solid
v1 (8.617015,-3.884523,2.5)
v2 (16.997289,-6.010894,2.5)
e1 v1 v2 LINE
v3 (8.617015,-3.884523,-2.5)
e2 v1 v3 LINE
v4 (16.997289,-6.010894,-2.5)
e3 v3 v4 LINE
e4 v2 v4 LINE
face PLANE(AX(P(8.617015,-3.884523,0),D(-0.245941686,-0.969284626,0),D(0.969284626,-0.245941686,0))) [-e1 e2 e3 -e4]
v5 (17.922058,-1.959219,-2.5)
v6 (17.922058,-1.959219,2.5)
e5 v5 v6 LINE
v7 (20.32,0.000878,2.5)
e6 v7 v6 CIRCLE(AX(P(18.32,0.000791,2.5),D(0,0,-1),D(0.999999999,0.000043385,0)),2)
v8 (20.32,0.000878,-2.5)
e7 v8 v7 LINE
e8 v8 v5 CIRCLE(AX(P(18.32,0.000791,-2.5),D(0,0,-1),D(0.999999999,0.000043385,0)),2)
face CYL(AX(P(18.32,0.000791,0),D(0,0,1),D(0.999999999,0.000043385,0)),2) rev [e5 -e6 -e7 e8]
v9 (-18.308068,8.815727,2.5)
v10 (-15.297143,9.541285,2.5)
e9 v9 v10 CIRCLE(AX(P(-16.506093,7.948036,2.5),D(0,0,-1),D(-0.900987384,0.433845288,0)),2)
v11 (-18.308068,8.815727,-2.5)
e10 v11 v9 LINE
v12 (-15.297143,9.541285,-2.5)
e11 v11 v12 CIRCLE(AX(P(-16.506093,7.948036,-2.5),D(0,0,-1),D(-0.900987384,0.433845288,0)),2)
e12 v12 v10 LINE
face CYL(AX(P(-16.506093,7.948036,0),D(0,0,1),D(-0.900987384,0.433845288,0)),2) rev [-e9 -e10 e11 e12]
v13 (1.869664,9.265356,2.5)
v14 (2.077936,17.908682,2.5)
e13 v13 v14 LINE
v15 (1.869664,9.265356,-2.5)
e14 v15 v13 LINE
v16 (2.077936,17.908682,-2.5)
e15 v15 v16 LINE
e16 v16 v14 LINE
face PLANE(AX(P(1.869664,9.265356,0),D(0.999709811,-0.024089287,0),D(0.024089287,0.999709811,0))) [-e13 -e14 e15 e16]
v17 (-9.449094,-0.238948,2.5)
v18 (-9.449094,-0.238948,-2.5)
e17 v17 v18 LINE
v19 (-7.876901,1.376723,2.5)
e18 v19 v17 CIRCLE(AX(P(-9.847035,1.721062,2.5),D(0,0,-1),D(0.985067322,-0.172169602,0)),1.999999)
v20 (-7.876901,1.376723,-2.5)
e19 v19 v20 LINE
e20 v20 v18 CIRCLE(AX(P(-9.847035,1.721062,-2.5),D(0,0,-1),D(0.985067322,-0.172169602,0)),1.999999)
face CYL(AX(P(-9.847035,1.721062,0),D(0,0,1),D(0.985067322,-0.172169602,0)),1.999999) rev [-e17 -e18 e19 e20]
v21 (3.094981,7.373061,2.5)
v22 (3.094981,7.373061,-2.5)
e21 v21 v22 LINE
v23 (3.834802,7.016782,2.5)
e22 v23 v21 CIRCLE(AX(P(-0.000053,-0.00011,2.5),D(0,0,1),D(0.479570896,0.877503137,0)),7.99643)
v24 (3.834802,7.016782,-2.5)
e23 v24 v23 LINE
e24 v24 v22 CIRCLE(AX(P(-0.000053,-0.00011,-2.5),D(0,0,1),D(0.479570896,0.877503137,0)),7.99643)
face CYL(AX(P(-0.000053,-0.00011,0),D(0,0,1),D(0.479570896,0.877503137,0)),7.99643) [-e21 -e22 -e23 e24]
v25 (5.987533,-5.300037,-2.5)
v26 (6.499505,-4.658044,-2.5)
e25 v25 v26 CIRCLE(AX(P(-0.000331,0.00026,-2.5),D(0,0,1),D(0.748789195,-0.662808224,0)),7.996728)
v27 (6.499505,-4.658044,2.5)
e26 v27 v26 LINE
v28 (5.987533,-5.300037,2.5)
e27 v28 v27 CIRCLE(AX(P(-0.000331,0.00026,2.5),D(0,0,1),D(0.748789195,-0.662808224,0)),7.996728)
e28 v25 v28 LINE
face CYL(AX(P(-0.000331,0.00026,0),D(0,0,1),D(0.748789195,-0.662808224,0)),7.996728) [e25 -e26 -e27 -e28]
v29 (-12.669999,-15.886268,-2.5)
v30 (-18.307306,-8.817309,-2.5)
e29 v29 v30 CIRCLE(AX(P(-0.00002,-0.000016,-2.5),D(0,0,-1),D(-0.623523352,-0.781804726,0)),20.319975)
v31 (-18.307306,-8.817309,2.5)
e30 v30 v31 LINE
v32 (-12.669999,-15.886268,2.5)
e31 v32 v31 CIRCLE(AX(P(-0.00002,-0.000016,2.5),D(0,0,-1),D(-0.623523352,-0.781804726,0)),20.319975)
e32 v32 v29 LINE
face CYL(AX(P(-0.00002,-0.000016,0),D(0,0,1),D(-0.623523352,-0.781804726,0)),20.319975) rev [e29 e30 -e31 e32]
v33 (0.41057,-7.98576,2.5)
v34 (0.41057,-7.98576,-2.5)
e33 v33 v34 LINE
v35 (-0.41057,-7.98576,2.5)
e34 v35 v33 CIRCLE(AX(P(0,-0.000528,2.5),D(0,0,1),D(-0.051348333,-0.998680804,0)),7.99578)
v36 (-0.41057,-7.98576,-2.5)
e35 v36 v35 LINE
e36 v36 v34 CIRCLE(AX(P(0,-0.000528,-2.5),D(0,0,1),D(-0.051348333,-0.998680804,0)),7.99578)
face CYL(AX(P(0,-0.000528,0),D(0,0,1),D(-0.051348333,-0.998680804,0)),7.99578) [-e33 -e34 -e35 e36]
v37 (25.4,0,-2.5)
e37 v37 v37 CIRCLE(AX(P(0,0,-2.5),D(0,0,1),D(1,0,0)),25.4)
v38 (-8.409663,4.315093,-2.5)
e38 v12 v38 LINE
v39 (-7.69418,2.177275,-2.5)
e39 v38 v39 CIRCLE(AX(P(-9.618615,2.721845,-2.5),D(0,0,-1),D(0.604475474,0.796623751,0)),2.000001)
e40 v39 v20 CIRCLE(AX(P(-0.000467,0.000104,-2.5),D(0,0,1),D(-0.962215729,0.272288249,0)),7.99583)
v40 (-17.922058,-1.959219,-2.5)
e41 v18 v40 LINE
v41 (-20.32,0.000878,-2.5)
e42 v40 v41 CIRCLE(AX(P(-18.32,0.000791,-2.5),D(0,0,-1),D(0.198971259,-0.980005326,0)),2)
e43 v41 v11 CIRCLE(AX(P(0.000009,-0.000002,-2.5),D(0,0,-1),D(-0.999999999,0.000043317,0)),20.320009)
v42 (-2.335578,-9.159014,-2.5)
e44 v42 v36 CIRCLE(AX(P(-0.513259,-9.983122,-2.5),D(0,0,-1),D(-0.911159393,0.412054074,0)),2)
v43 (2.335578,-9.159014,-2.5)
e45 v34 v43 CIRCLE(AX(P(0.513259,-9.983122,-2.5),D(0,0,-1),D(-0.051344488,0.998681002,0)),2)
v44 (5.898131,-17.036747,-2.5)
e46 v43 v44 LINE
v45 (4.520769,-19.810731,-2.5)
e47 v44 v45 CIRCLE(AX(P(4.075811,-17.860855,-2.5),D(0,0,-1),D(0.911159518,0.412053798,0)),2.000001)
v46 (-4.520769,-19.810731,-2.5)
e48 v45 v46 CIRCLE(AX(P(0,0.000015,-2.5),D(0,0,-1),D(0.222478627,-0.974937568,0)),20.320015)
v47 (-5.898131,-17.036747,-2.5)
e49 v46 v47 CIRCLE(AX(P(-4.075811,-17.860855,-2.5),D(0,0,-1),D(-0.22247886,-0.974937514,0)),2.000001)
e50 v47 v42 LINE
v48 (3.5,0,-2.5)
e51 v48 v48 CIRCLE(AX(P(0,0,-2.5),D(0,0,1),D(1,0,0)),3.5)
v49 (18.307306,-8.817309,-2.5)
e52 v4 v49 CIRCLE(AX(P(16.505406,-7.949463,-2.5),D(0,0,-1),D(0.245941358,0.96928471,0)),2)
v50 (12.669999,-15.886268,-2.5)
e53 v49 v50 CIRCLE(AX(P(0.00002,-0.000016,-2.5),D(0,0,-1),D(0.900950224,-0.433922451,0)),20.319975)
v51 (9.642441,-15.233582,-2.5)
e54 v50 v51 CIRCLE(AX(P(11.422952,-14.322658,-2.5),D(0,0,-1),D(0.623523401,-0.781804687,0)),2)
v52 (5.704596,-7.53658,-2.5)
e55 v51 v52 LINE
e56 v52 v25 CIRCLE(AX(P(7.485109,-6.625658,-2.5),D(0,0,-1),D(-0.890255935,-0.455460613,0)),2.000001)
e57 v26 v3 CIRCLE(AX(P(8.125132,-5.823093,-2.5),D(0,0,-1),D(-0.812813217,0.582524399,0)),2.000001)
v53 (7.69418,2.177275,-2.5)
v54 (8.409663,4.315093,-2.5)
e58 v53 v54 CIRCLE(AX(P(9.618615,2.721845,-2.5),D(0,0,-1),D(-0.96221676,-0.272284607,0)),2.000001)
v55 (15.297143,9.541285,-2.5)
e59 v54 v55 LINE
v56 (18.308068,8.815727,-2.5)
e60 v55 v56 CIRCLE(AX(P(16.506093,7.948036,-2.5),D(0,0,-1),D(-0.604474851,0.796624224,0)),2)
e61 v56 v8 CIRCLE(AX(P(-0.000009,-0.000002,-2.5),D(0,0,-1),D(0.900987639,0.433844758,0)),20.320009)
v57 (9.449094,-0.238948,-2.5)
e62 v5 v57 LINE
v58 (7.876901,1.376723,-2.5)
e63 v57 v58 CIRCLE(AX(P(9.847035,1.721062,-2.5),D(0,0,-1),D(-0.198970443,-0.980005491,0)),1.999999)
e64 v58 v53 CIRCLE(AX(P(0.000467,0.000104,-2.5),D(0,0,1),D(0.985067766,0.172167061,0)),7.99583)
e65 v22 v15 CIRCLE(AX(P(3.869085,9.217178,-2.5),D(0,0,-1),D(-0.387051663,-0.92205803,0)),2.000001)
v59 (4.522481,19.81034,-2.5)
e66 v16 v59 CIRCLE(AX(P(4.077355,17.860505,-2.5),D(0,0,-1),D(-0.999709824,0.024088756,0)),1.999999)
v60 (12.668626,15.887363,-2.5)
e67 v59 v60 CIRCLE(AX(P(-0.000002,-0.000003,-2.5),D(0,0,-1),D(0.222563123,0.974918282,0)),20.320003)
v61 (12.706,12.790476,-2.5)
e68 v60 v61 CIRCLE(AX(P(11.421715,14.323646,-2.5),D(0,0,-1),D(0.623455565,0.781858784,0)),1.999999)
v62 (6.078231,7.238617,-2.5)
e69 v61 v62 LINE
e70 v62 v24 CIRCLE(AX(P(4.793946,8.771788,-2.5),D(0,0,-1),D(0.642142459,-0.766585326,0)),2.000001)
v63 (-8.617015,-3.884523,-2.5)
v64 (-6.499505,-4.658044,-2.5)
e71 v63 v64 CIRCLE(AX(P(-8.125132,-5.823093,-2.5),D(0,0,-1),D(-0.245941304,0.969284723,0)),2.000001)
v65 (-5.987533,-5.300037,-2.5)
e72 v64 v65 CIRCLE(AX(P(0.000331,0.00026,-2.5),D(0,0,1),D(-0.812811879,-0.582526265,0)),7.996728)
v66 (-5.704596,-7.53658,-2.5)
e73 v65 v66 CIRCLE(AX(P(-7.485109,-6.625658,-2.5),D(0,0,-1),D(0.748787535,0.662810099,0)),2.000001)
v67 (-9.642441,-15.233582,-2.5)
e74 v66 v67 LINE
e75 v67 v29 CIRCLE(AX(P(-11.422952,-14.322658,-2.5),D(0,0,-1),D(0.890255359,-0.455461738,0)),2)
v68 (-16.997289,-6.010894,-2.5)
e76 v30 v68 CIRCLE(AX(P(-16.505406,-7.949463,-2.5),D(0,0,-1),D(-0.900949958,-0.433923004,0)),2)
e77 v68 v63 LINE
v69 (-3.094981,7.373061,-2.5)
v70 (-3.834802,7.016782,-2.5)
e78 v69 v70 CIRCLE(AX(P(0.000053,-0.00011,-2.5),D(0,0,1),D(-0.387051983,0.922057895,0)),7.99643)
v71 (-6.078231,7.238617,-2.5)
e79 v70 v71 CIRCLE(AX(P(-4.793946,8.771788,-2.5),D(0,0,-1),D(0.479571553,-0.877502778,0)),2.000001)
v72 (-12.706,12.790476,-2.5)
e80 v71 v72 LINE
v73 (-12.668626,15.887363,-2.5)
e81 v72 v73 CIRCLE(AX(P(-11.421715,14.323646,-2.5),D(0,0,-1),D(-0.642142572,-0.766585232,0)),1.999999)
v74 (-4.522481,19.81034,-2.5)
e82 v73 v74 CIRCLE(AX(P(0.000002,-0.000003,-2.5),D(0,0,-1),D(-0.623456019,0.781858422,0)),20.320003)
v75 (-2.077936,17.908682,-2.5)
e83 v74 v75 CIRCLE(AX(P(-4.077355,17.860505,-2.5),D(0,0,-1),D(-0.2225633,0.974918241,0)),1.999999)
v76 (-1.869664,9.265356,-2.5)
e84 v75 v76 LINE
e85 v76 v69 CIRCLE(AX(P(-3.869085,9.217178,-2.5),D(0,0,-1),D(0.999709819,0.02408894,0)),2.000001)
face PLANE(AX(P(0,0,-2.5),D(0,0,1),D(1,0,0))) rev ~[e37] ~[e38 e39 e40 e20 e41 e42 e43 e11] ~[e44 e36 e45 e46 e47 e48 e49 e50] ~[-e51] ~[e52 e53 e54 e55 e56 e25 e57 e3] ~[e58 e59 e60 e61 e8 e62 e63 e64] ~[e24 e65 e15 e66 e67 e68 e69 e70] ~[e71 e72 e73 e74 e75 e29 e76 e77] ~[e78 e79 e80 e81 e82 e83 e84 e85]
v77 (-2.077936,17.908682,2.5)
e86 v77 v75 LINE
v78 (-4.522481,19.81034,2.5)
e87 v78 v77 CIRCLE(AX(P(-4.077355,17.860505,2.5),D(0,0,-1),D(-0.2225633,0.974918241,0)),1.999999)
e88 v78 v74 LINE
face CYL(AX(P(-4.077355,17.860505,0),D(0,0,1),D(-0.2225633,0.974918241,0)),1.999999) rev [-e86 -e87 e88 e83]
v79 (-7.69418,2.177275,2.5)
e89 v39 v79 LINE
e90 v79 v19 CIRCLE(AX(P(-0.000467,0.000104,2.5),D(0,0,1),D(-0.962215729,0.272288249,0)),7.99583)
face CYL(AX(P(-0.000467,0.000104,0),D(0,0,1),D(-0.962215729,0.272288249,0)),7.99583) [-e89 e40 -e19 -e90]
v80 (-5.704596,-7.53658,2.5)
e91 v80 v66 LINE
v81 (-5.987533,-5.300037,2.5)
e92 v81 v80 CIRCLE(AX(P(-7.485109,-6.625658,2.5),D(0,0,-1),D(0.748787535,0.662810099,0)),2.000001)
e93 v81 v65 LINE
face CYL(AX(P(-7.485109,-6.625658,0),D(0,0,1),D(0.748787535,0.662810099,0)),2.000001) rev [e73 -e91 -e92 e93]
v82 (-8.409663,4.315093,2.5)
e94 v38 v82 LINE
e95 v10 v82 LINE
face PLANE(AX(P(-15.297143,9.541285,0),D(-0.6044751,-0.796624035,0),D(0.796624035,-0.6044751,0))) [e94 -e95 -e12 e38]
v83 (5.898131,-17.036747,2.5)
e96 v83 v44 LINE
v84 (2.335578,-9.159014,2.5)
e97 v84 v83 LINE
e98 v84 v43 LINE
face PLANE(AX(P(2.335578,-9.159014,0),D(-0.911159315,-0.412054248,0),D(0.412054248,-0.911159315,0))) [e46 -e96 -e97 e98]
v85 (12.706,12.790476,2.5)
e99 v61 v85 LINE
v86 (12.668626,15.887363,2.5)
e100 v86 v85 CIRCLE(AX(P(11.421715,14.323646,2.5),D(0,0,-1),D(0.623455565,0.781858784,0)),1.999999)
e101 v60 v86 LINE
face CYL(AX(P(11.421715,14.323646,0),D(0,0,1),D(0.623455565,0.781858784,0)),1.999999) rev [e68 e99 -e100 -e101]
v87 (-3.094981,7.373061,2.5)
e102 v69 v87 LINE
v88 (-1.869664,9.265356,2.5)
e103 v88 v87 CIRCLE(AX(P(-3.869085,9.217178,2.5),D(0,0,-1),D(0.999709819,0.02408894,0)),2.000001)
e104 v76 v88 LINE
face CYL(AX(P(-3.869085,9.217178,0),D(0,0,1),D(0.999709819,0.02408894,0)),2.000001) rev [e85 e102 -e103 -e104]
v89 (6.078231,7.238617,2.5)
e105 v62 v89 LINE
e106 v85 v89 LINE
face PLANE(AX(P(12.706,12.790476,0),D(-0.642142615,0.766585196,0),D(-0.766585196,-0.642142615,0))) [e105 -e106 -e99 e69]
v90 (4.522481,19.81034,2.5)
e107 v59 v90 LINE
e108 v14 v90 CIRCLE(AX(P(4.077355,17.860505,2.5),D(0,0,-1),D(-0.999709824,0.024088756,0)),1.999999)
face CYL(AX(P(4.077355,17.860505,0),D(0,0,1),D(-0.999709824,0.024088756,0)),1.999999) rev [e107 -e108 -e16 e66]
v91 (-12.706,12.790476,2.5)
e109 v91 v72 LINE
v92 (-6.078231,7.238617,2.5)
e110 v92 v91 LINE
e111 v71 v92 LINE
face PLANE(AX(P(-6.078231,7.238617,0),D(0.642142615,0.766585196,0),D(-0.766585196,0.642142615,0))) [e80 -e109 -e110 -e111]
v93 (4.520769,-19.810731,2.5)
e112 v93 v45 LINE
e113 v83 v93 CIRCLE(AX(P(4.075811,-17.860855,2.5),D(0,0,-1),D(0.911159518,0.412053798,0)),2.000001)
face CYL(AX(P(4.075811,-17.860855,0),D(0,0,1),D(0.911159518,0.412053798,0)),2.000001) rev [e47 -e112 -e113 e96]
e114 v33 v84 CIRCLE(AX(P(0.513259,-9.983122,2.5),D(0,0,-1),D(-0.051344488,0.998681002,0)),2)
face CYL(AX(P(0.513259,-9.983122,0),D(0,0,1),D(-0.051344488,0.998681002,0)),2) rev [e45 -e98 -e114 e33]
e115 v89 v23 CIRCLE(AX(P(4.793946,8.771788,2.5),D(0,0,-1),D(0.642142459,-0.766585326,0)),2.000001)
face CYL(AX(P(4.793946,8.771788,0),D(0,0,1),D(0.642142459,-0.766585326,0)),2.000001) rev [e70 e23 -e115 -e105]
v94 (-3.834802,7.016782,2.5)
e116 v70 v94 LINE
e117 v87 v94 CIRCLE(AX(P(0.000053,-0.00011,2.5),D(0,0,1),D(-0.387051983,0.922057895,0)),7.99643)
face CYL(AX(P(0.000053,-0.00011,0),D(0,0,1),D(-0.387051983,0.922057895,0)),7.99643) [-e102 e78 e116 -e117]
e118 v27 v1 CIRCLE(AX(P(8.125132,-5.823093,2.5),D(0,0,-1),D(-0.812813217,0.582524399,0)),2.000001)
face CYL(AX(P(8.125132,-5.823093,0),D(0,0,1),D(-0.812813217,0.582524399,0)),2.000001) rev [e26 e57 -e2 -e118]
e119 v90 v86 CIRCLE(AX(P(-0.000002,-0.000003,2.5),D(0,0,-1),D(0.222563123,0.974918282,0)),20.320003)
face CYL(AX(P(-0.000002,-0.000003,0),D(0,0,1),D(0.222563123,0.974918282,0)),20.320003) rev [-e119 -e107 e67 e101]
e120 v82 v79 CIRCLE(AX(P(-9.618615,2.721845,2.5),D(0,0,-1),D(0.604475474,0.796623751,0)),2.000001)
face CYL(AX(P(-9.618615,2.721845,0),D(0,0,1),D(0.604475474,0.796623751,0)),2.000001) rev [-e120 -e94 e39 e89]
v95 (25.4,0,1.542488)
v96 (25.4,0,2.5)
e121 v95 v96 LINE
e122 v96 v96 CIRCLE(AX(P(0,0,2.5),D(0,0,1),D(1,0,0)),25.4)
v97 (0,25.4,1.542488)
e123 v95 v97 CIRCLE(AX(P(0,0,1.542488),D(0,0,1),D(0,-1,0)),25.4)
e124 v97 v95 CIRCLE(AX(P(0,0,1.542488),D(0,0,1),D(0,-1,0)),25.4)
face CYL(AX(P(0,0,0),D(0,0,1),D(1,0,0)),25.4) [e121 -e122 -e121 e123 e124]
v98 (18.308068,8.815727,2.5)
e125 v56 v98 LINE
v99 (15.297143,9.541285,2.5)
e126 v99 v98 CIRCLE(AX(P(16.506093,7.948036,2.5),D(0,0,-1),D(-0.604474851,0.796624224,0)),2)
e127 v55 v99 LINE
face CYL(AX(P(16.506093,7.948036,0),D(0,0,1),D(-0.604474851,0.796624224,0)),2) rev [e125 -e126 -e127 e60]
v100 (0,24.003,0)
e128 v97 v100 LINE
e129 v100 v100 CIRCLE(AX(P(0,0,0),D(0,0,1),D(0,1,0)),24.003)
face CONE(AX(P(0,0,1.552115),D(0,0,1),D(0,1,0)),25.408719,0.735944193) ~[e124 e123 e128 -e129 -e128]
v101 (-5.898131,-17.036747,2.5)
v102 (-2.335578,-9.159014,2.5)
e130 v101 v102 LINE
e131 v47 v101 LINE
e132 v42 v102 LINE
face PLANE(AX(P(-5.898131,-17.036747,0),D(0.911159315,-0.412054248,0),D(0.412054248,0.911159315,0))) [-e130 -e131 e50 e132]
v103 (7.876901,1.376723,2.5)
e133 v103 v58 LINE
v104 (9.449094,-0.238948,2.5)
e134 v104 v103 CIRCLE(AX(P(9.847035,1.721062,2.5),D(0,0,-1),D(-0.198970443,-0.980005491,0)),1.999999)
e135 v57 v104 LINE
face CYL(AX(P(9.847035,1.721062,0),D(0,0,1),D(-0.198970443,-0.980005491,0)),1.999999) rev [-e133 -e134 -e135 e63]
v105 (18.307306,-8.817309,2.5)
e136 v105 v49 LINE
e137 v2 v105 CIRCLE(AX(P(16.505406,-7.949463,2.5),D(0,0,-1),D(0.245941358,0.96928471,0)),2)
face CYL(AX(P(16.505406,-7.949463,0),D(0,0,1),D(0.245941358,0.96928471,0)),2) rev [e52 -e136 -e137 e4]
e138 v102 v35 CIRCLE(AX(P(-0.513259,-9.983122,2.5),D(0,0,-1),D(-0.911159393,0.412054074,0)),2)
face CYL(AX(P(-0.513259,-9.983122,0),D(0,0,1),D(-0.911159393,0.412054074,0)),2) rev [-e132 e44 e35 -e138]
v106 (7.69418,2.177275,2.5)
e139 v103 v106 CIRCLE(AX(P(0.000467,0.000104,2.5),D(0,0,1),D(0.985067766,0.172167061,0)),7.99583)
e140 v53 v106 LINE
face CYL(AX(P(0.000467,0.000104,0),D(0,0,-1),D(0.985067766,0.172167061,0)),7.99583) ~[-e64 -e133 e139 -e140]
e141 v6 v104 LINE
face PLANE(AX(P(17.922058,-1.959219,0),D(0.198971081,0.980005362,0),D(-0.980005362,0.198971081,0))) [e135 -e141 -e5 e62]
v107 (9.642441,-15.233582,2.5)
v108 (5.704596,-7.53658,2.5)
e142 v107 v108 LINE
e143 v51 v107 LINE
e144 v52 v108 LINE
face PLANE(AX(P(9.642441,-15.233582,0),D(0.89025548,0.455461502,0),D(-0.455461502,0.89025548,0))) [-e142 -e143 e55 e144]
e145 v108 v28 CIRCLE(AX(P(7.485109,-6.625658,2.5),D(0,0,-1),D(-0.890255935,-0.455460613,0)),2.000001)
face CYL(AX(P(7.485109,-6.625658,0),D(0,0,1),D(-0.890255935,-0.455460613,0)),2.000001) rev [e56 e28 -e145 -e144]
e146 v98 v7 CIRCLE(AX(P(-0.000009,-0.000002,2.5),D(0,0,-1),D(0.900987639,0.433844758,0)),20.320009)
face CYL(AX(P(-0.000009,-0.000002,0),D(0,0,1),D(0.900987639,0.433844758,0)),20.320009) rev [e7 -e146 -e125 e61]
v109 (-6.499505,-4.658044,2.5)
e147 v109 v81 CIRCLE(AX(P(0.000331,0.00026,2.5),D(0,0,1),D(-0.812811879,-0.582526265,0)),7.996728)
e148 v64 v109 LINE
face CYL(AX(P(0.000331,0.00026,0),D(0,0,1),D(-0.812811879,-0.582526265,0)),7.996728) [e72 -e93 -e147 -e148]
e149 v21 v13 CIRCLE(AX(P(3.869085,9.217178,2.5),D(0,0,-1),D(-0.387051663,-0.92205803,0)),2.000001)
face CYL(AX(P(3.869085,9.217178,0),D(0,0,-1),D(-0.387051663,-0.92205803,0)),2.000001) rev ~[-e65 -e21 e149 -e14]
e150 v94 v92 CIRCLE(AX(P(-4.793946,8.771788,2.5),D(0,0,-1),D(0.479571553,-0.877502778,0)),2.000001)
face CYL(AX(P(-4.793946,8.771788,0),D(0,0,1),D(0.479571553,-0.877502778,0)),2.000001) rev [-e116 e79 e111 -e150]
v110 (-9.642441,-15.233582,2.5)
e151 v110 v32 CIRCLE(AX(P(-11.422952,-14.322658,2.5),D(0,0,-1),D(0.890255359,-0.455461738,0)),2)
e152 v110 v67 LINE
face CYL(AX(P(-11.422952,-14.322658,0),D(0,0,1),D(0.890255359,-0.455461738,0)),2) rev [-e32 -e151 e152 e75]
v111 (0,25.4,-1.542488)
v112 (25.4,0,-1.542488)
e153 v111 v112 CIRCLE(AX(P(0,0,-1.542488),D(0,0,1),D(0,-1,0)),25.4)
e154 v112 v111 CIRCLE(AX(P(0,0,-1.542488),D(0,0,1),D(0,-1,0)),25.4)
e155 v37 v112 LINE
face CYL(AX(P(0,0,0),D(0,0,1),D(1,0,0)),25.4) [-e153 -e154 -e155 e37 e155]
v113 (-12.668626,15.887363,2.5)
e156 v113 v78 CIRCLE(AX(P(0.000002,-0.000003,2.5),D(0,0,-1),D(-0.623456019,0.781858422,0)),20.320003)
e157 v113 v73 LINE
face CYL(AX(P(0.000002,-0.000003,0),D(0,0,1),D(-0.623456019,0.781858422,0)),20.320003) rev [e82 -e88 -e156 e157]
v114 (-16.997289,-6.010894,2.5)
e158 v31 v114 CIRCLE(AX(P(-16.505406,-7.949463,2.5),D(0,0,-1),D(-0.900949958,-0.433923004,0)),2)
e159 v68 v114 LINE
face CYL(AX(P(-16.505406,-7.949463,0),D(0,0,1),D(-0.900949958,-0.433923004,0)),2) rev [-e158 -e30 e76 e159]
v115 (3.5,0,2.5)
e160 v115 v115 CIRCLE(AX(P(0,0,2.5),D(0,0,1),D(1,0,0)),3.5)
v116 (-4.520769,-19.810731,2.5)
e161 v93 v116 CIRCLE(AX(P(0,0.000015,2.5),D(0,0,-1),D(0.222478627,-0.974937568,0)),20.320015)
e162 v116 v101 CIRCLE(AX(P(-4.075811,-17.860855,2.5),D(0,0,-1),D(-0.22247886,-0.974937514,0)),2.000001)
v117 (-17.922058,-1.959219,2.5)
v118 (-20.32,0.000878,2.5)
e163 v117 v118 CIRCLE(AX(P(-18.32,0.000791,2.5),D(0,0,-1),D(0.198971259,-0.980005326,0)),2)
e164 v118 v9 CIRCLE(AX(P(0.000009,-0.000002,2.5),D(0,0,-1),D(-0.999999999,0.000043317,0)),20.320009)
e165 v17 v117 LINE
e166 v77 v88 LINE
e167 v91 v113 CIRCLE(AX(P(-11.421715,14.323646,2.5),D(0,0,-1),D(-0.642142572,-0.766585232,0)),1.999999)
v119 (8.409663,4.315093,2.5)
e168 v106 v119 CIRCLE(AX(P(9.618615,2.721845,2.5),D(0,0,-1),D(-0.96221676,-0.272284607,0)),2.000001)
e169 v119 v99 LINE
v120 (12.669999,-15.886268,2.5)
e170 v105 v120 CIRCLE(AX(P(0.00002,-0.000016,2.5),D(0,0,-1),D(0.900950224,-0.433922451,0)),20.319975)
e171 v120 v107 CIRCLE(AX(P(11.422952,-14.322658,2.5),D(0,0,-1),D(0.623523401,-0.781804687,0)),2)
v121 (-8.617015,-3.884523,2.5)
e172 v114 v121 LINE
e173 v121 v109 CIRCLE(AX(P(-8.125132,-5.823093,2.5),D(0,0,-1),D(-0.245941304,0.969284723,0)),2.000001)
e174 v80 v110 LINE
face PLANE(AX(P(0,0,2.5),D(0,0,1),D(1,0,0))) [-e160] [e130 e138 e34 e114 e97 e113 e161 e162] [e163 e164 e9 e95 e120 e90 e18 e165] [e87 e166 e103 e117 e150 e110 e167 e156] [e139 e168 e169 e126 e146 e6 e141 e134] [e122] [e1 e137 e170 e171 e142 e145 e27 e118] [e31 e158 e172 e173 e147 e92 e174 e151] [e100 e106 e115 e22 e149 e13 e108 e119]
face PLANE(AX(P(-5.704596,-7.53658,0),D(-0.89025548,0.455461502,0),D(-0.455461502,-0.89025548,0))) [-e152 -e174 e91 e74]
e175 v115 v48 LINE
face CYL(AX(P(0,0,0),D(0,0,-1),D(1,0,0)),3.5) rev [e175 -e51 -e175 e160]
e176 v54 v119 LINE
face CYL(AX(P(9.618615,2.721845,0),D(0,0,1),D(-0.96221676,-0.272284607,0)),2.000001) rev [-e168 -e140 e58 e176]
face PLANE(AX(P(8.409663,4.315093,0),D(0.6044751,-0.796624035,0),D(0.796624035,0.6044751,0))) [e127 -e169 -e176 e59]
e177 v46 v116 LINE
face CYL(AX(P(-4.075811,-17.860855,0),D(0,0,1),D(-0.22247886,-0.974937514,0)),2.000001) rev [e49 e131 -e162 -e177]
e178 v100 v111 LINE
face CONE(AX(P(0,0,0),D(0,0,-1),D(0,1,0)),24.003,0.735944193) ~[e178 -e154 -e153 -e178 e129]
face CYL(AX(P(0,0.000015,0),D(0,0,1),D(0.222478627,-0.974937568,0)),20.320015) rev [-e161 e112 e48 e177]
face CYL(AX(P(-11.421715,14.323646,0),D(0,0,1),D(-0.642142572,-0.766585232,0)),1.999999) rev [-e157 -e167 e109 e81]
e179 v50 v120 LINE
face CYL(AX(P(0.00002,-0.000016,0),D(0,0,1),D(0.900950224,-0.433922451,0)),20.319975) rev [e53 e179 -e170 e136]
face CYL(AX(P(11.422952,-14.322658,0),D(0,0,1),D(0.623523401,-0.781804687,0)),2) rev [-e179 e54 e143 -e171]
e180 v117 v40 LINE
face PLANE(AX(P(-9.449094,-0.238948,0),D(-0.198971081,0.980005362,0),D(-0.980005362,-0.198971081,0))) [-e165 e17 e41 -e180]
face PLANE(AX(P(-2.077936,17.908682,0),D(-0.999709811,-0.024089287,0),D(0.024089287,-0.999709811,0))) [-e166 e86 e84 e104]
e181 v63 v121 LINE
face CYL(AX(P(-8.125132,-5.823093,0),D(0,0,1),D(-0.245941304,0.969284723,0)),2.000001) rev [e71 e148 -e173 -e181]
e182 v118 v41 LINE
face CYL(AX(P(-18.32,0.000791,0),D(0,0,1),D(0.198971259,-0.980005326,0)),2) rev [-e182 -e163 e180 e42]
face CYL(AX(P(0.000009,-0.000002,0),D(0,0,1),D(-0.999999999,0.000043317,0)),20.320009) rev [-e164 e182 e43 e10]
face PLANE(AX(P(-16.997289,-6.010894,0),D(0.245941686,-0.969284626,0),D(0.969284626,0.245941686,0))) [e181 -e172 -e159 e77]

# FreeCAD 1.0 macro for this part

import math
import FreeCAD as App
import Part
import Sketcher
from FreeCAD import Vector


def add_polygon(sketch, points):
    """Adds a closed chain of lines whose ends are joined by coincident constraints."""
    first, n = sketch.GeometryCount, len(points)
    for a, b in zip(points, points[1:] + points[:1]):
        sketch.addGeometry(Part.LineSegment(App.Vector(*a, 0), App.Vector(*b, 0)), False)
    for i in range(n):
        sketch.addConstraint(Sketcher.Constraint("Coincident", first + i, 2, first + (i + 1) % n, 1))

doc = App.newDocument("Part")
body = doc.addObject("PartDesign::Body", "Body")

sketch1 = body.newObject("Sketcher::SketchObject", "Sketch")
sketch1.AttachmentSupport = (doc.getObject("XY_Plane"), [""])
sketch1.MapMode = "FlatFace"
sketch1.addGeometry(Part.Circle(Vector(0, 0, 0), Vector(0, 0, 1), 25.4), False)
sketch1.addGeometry(Part.ArcOfCircle(Part.Circle(Vector(-0.00002, -0.000016, 0), Vector(0, 0, 1), 20.319975), math.radians(-154.283252), math.radians(-128.573887)), False)
sketch1.addGeometry(Part.ArcOfCircle(Part.Circle(Vector(-16.505406, -7.949463, 0), Vector(0, 0, 1), 2), math.radians(104.237472), math.radians(205.716783)), False)
sketch1.addGeometry(Part.LineSegment(Vector(-16.997289, -6.010894, 0), Vector(-8.617015, -3.884523, 0)), False)
sketch1.addGeometry(Part.ArcOfCircle(Part.Circle(Vector(-8.125132, -5.823093, 0), Vector(0, 0, 1), 2.000001), math.radians(35.628292), math.radians(104.237469)), False)
sketch1.addGeometry(Part.ArcOfCircle(Part.Circle(Vector(0.000331, 0.00026, 0), Vector(0, 0, 1), 7.996728), math.radians(-144.371576), math.radians(-138.485603)), False)
sketch1.addGeometry(Part.ArcOfCircle(Part.Circle(Vector(-7.485109, -6.625658, 0), Vector(0, 0, 1), 2.000001), math.radians(-27.094575), math.radians(41.514541)), False)
sketch1.addGeometry(Part.LineSegment(Vector(-5.704596, -7.53658, 0), Vector(-9.642441, -15.233582, 0)), False)
sketch1.addGeometry(Part.ArcOfCircle(Part.Circle(Vector(-11.422952, -14.322658, 0), Vector(0, 0, 1), 2), math.radians(-128.573891), math.radians(-27.094647)), False)
sketch1.addGeometry(Part.ArcOfCircle(Part.Circle(Vector(0, 0.000015, 0), Vector(0, 0, 1), 20.320015), math.radians(-102.854657), math.radians(-77.145343)), False)
sketch1.addGeometry(Part.ArcOfCircle(Part.Circle(Vector(-4.075811, -17.860855, 0), Vector(0, 0, 1), 2.000001), math.radians(155.666083), math.radians(257.14533)), False)
sketch1.addGeometry(Part.LineSegment(Vector(-5.898131, -17.036747, 0), Vector(-2.335578, -9.159014, 0)), False)
sketch1.addGeometry(Part.ArcOfCircle(Part.Circle(Vector(-0.513259, -9.983122, 0), Vector(0, 0, 1), 2), math.radians(87.056883), math.radians(155.666066)), False)
sketch1.addGeometry(Part.ArcOfCircle(Part.Circle(Vector(0, -0.000528, 0), Vector(0, 0, 1), 7.99578), math.radians(-92.943337), math.radians(-87.056663)), False)
sketch1.addGeometry(Part.ArcOfCircle(Part.Circle(Vector(0.513259, -9.983122, 0), Vector(0, 0, 1), 2), math.radians(24.333934), math.radians(92.943117)), False)
sketch1.addGeometry(Part.LineSegment(Vector(2.335578, -9.159014, 0), Vector(5.898131, -17.036747, 0)), False)
sketch1.addGeometry(Part.ArcOfCircle(Part.Circle(Vector(4.075811, -17.860855, 0), Vector(0, 0, 1), 2.000001), math.radians(-77.14533), math.radians(24.333917)), False)
sketch1.addGeometry(Part.ArcOfCircle(Part.Circle(Vector(0.00002, -0.000016, 0), Vector(0, 0, 1), 20.319975), math.radians(-51.426113), math.radians(-25.716748)), False)
sketch1.addGeometry(Part.ArcOfCircle(Part.Circle(Vector(11.422952, -14.322658, 0), Vector(0, 0, 1), 2), math.radians(-152.905353), math.radians(-51.426109)), False)
sketch1.addGeometry(Part.LineSegment(Vector(9.642441, -15.233582, 0), Vector(5.704596, -7.53658, 0)), False)
sketch1.addGeometry(Part.ArcOfCircle(Part.Circle(Vector(7.485109, -6.625658, 0), Vector(0, 0, 1), 2.000001), math.radians(138.485459), math.radians(207.094575)), False)
sketch1.addGeometry(Part.ArcOfCircle(Part.Circle(Vector(-0.000331, 0.00026, 0), Vector(0, 0, 1), 7.996728), math.radians(-41.514397), math.radians(-35.628424)), False)
sketch1.addGeometry(Part.ArcOfCircle(Part.Circle(Vector(8.125132, -5.823093, 0), Vector(0, 0, 1), 2.000001), math.radians(75.762531), math.radians(144.371708)), False)
sketch1.addGeometry(Part.LineSegment(Vector(8.617015, -3.884523, 0), Vector(16.997289, -6.010894, 0)), False)
sketch1.addGeometry(Part.ArcOfCircle(Part.Circle(Vector(16.505406, -7.949463, 0), Vector(0, 0, 1), 2), math.radians(-25.716783), math.radians(75.762528)), False)
sketch1.addGeometry(Part.ArcOfCircle(Part.Circle(Vector(0.000009, -0.000002, 0), Vector(0, 0, 1), 20.320009), math.radians(154.288193), math.radians(179.997518)), False)
sketch1.addGeometry(Part.ArcOfCircle(Part.Circle(Vector(-16.506093, 7.948036, 0), Vector(0, 0, 1), 2), math.radians(52.808938), math.radians(154.28816)), False)
sketch1.addGeometry(Part.LineSegment(Vector(-15.297143, 9.541285, 0), Vector(-8.409663, 4.315093, 0)), False)
sketch1.addGeometry(Part.ArcOfCircle(Part.Circle(Vector(-9.618615, 2.721845, 0), Vector(0, 0, 1), 2.000001), math.radians(-15.80026), math.radians(52.808893)), False)
sketch1.addGeometry(Part.ArcOfCircle(Part.Circle(Vector(-0.000467, 0.000104, 0), Vector(0, 0, 1), 7.99583), math.radians(164.199524), math.radians(170.086159)), False)
sketch1.addGeometry(Part.ArcOfCircle(Part.Circle(Vector(-9.847035, 1.721062, 0), Vector(0, 0, 1), 1.999999), math.radians(-78.52324), math.radians(-9.913988)), False)
sketch1.addGeometry(Part.LineSegment(Vector(-9.449094, -0.238948, 0), Vector(-17.922058, -1.959219, 0)), False)
sketch1.addGeometry(Part.ArcOfCircle(Part.Circle(Vector(-18.32, 0.000791, 0), Vector(0, 0, 1), 2), math.radians(179.997514), math.radians(281.476807)), False)
sketch1.addGeometry(Part.LineSegment(Vector(-2.077936, 17.908682, 0), Vector(-1.869664, 9.265356, 0)), False)
sketch1.addGeometry(Part.ArcOfCircle(Part.Circle(Vector(-3.869085, 9.217178, 0), Vector(0, 0, 1), 2.000001), math.radians(-67.228831), math.radians(1.380328)), False)
sketch1.addGeometry(Part.ArcOfCircle(Part.Circle(Vector(0.000053, -0.00011, 0), Vector(0, 0, 1), 7.99643), math.radians(112.771189), math.radians(118.65738)), False)
sketch1.addGeometry(Part.ArcOfCircle(Part.Circle(Vector(-4.793946, 8.771788, 0), Vector(0, 0, 1), 2.000001), math.radians(-129.951763), math.radians(-61.342577)), False)
sketch1.addGeometry(Part.LineSegment(Vector(-6.078231, 7.238617, 0), Vector(-12.706, 12.790476, 0)), False)
sketch1.addGeometry(Part.ArcOfCircle(Part.Circle(Vector(-11.421715, 14.323646, 0), Vector(0, 0, 1), 1.999999), math.radians(128.56892), math.radians(230.048228)), False)
sketch1.addGeometry(Part.ArcOfCircle(Part.Circle(Vector(0.000002, -0.000003, 0), Vector(0, 0, 1), 20.320003), math.radians(102.859622), math.radians(128.568953)), False)
sketch1.addGeometry(Part.ArcOfCircle(Part.Circle(Vector(-4.077355, 17.860505, 0), Vector(0, 0, 1), 1.999999), math.radians(1.380318), math.radians(102.859633)), False)
sketch1.addGeometry(Part.Circle(Vector(0, 0, 0), Vector(0, 0, 1), 3.5), False)
sketch1.addGeometry(Part.ArcOfCircle(Part.Circle(Vector(-0.000009, -0.000002, 0), Vector(0, 0, 1), 20.320009), math.radians(0.002482), math.radians(25.711807)), False)
sketch1.addGeometry(Part.ArcOfCircle(Part.Circle(Vector(18.32, 0.000791, 0), Vector(0, 0, 1), 2), math.radians(-101.476807), math.radians(0.002486)), False)
sketch1.addGeometry(Part.LineSegment(Vector(17.922058, -1.959219, 0), Vector(9.449094, -0.238948, 0)), False)
sketch1.addGeometry(Part.ArcOfCircle(Part.Circle(Vector(9.847035, 1.721062, 0), Vector(0, 0, 1), 1.999999), math.radians(-170.086012), math.radians(-101.47676)), False)
sketch1.addGeometry(Part.ArcOfCircle(Part.Circle(Vector(0.000467, 0.000104, 0), Vector(0, 0, 1), 7.99583), math.radians(9.913841), math.radians(15.800476)), False)
sketch1.addGeometry(Part.ArcOfCircle(Part.Circle(Vector(9.618615, 2.721845, 0), Vector(0, 0, 1), 2.000001), math.radians(127.191107), math.radians(195.80026)), False)
sketch1.addGeometry(Part.LineSegment(Vector(8.409663, 4.315093, 0), Vector(15.297143, 9.541285, 0)), False)
sketch1.addGeometry(Part.ArcOfCircle(Part.Circle(Vector(16.506093, 7.948036, 0), Vector(0, 0, 1), 2), math.radians(25.71184), math.radians(127.191062)), False)
sketch1.addGeometry(Part.ArcOfCircle(Part.Circle(Vector(-0.000053, -0.00011, 0), Vector(0, 0, 1), 7.99643), math.radians(61.34262), math.radians(67.228811)), False)
sketch1.addGeometry(Part.ArcOfCircle(Part.Circle(Vector(3.869085, 9.217178, 0), Vector(0, 0, 1), 2.000001), math.radians(178.619672), math.radians(247.228831)), False)
sketch1.addGeometry(Part.LineSegment(Vector(1.869664, 9.265356, 0), Vector(2.077936, 17.908682, 0)), False)
sketch1.addGeometry(Part.ArcOfCircle(Part.Circle(Vector(4.077355, 17.860505, 0), Vector(0, 0, 1), 1.999999), math.radians(77.140367), math.radians(178.619682)), False)
sketch1.addGeometry(Part.ArcOfCircle(Part.Circle(Vector(-0.000002, -0.000003, 0), Vector(0, 0, 1), 20.320003), math.radians(51.431047), math.radians(77.140378)), False)
sketch1.addGeometry(Part.ArcOfCircle(Part.Circle(Vector(11.421715, 14.323646, 0), Vector(0, 0, 1), 1.999999), math.radians(-50.048228), math.radians(51.43108)), False)
sketch1.addGeometry(Part.LineSegment(Vector(12.706, 12.790476, 0), Vector(6.078231, 7.238617, 0)), False)
sketch1.addGeometry(Part.ArcOfCircle(Part.Circle(Vector(4.793946, 8.771788, 0), Vector(0, 0, 1), 2.000001), math.radians(-118.657423), math.radians(-50.048237)), False)
sketch1.addConstraint(Sketcher.Constraint("Coincident", 1, 1, 2, 2))
sketch1.addConstraint(Sketcher.Constraint("Coincident", 2, 1, 3, 1))
sketch1.addConstraint(Sketcher.Constraint("Coincident", 3, 2, 4, 2))
sketch1.addConstraint(Sketcher.Constraint("Coincident", 4, 1, 5, 1))
sketch1.addConstraint(Sketcher.Constraint("Coincident", 5, 2, 6, 2))
sketch1.addConstraint(Sketcher.Constraint("Coincident", 6, 1, 7, 1))
sketch1.addConstraint(Sketcher.Constraint("Coincident", 7, 2, 8, 2))
sketch1.addConstraint(Sketcher.Constraint("Coincident", 8, 1, 1, 2))
sketch1.addConstraint(Sketcher.Constraint("Coincident", 9, 1, 10, 2))
sketch1.addConstraint(Sketcher.Constraint("Coincident", 10, 1, 11, 1))
sketch1.addConstraint(Sketcher.Constraint("Coincident", 11, 2, 12, 2))
sketch1.addConstraint(Sketcher.Constraint("Coincident", 12, 1, 13, 1))
sketch1.addConstraint(Sketcher.Constraint("Coincident", 13, 2, 14, 2))
sketch1.addConstraint(Sketcher.Constraint("Coincident", 14, 1, 15, 1))
sketch1.addConstraint(Sketcher.Constraint("Coincident", 15, 2, 16, 2))
sketch1.addConstraint(Sketcher.Constraint("Coincident", 16, 1, 9, 2))
sketch1.addConstraint(Sketcher.Constraint("Coincident", 17, 1, 18, 2))
sketch1.addConstraint(Sketcher.Constraint("Coincident", 18, 1, 19, 1))
sketch1.addConstraint(Sketcher.Constraint("Coincident", 19, 2, 20, 2))
sketch1.addConstraint(Sketcher.Constraint("Coincident", 20, 1, 21, 1))
sketch1.addConstraint(Sketcher.Constraint("Coincident", 21, 2, 22, 2))
sketch1.addConstraint(Sketcher.Constraint("Coincident", 22, 1, 23, 1))
sketch1.addConstraint(Sketcher.Constraint("Coincident", 23, 2, 24, 2))
sketch1.addConstraint(Sketcher.Constraint("Coincident", 24, 1, 17, 2))
sketch1.addConstraint(Sketcher.Constraint("Coincident", 25, 1, 26, 2))
sketch1.addConstraint(Sketcher.Constraint("Coincident", 26, 1, 27, 1))
sketch1.addConstraint(Sketcher.Constraint("Coincident", 27, 2, 28, 2))
sketch1.addConstraint(Sketcher.Constraint("Coincident", 28, 1, 29, 1))
sketch1.addConstraint(Sketcher.Constraint("Coincident", 29, 2, 30, 2))
sketch1.addConstraint(Sketcher.Constraint("Coincident", 30, 1, 31, 1))
sketch1.addConstraint(Sketcher.Constraint("Coincident", 31, 2, 32, 2))
sketch1.addConstraint(Sketcher.Constraint("Coincident", 32, 1, 25, 2))
sketch1.addConstraint(Sketcher.Constraint("Coincident", 33, 2, 34, 2))
sketch1.addConstraint(Sketcher.Constraint("Coincident", 34, 1, 35, 1))
sketch1.addConstraint(Sketcher.Constraint("Coincident", 35, 2, 36, 2))
sketch1.addConstraint(Sketcher.Constraint("Coincident", 36, 1, 37, 1))
sketch1.addConstraint(Sketcher.Constraint("Coincident", 37, 2, 38, 2))
sketch1.addConstraint(Sketcher.Constraint("Coincident", 38, 1, 39, 2))
sketch1.addConstraint(Sketcher.Constraint("Coincident", 39, 1, 40, 2))
sketch1.addConstraint(Sketcher.Constraint("Coincident", 40, 1, 33, 1))
sketch1.addConstraint(Sketcher.Constraint("Coincident", 42, 1, 43, 2))
sketch1.addConstraint(Sketcher.Constraint("Coincident", 43, 1, 44, 1))
sketch1.addConstraint(Sketcher.Constraint("Coincident", 44, 2, 45, 2))
sketch1.addConstraint(Sketcher.Constraint("Coincident", 45, 1, 46, 1))
sketch1.addConstraint(Sketcher.Constraint("Coincident", 46, 2, 47, 2))
sketch1.addConstraint(Sketcher.Constraint("Coincident", 47, 1, 48, 1))
sketch1.addConstraint(Sketcher.Constraint("Coincident", 48, 2, 49, 2))
sketch1.addConstraint(Sketcher.Constraint("Coincident", 49, 1, 42, 2))
sketch1.addConstraint(Sketcher.Constraint("Coincident", 50, 2, 51, 2))
sketch1.addConstraint(Sketcher.Constraint("Coincident", 51, 1, 52, 1))
sketch1.addConstraint(Sketcher.Constraint("Coincident", 52, 2, 53, 2))
sketch1.addConstraint(Sketcher.Constraint("Coincident", 53, 1, 54, 2))
sketch1.addConstraint(Sketcher.Constraint("Coincident", 54, 1, 55, 2))
sketch1.addConstraint(Sketcher.Constraint("Coincident", 55, 1, 56, 1))
sketch1.addConstraint(Sketcher.Constraint("Coincident", 56, 2, 57, 2))
sketch1.addConstraint(Sketcher.Constraint("Coincident", 57, 1, 50, 1))
sketch1.addConstraint(Sketcher.Constraint("Coincident", 0, 3, -1, 1))
sketch1.addConstraint(Sketcher.Constraint("Coincident", 25, 3, -1, 1))
sketch1.addConstraint(Sketcher.Constraint("Coincident", 39, 3, -1, 1))
sketch1.addConstraint(Sketcher.Constraint("Coincident", 41, 3, -1, 1))
sketch1.addConstraint(Sketcher.Constraint("Coincident", 42, 3, -1, 1))
sketch1.addConstraint(Sketcher.Constraint("Coincident", 54, 3, -1, 1))
sketch1.addConstraint(Sketcher.Constraint("PointOnObject", 9, 3, -2))
sketch1.addConstraint(Sketcher.Constraint("PointOnObject", 13, 3, -2))
sketch1.addConstraint(Sketcher.Constraint("Diameter", 41, 7.0))
sketch1.addConstraint(Sketcher.Constraint("Radius", 2, 2.0))
sketch1.addConstraint(Sketcher.Constraint("Radius", 4, 2.000001))
sketch1.addConstraint(Sketcher.Constraint("Radius", 6, 2.000001))
sketch1.addConstraint(Sketcher.Constraint("Radius", 8, 2.0))
sketch1.addConstraint(Sketcher.Constraint("Radius", 10, 2.000001))
sketch1.addConstraint(Sketcher.Constraint("Radius", 12, 2.0))
sketch1.addConstraint(Sketcher.Constraint("Radius", 14, 2.0))
sketch1.addConstraint(Sketcher.Constraint("Radius", 16, 2.000001))
sketch1.addConstraint(Sketcher.Constraint("Radius", 18, 2.0))
sketch1.addConstraint(Sketcher.Constraint("Radius", 20, 2.000001))
sketch1.addConstraint(Sketcher.Constraint("Radius", 22, 2.000001))
sketch1.addConstraint(Sketcher.Constraint("Radius", 24, 2.0))
sketch1.addConstraint(Sketcher.Constraint("Radius", 26, 2.0))
sketch1.addConstraint(Sketcher.Constraint("Radius", 28, 2.000001))
sketch1.addConstraint(Sketcher.Constraint("Radius", 30, 1.999999))
sketch1.addConstraint(Sketcher.Constraint("Radius", 32, 2.0))
sketch1.addConstraint(Sketcher.Constraint("Radius", 34, 2.000001))
sketch1.addConstraint(Sketcher.Constraint("Radius", 36, 2.000001))
sketch1.addConstraint(Sketcher.Constraint("Radius", 38, 1.999999))
sketch1.addConstraint(Sketcher.Constraint("Radius", 40, 1.999999))
sketch1.addConstraint(Sketcher.Constraint("Radius", 43, 2.0))
sketch1.addConstraint(Sketcher.Constraint("Radius", 45, 1.999999))
sketch1.addConstraint(Sketcher.Constraint("Radius", 47, 2.000001))
sketch1.addConstraint(Sketcher.Constraint("Radius", 49, 2.0))
sketch1.addConstraint(Sketcher.Constraint("Radius", 51, 2.000001))
sketch1.addConstraint(Sketcher.Constraint("Radius", 53, 1.999999))
sketch1.addConstraint(Sketcher.Constraint("Radius", 55, 1.999999))
sketch1.addConstraint(Sketcher.Constraint("Radius", 57, 2.000001))
sketch1.addConstraint(Sketcher.Constraint("Diameter", 0, 50.8))
sketch1.addConstraint(Sketcher.Constraint("DistanceX", 32, 3, -1, 1, 18.32))
sketch1.addConstraint(Sketcher.Constraint("DistanceX", -1, 1, 43, 3, 18.32))
sketch1.addConstraint(Sketcher.Constraint("DistanceX", 8, 1, -1, 1, 12.669999))
sketch1.addConstraint(Sketcher.Constraint("DistanceX", -1, 1, 17, 1, 12.669999))
sketch1.addConstraint(Sketcher.Constraint("Radius", 5, 7.996728))
sketch1.addConstraint(Sketcher.Constraint("Radius", 13, 7.99578))
sketch1.addConstraint(Sketcher.Constraint("Radius", 21, 7.996728))
sketch1.addConstraint(Sketcher.Constraint("Radius", 29, 7.99583))
sketch1.addConstraint(Sketcher.Constraint("Radius", 35, 7.99643))
sketch1.addConstraint(Sketcher.Constraint("Radius", 46, 7.99583))
sketch1.addConstraint(Sketcher.Constraint("Radius", 50, 7.99643))
sketch1.addConstraint(Sketcher.Constraint("DistanceX", 37, 2, -1, 1, 12.706))
sketch1.addConstraint(Sketcher.Constraint("DistanceX", -1, 1, 55, 1, 12.706))
sketch1.addConstraint(Sketcher.Constraint("Radius", 1, 20.319975))
sketch1.addConstraint(Sketcher.Constraint("Radius", 9, 20.320015))
sketch1.addConstraint(Sketcher.Constraint("Radius", 17, 20.319975))
sketch1.addConstraint(Sketcher.Constraint("Radius", 39, 20.320003))
sketch1.addConstraint(Sketcher.Constraint("Radius", 54, 20.320003))
sketch1.addConstraint(Sketcher.Constraint("DistanceX", 29, 2, -1, 1, 7.876901))
sketch1.addConstraint(Sketcher.Constraint("DistanceX", -1, 1, 45, 1, 7.876901))
sketch1.addConstraint(Sketcher.Constraint("DistanceX", -1, 1, 57, 1, 3.834802))
sketch1.addConstraint(Sketcher.Constraint("DistanceX", -1, 1, 5, 3, 0.000331))
sketch1.addConstraint(Sketcher.Constraint("DistanceY", -1, 1, 5, 3, 0.00026))
sketch1.addConstraint(Sketcher.Constraint("DistanceX", 6, 3, -1, 1, 7.485109))
sketch1.addConstraint(Sketcher.Constraint("DistanceY", 8, 3, -1, 1, 14.322658))
sketch1.addConstraint(Sketcher.Constraint("DistanceX", 10, 3, -1, 1, 4.075811))
sketch1.addConstraint(Sketcher.Constraint("DistanceX", 12, 3, -1, 1, 0.513259))
sketch1.addConstraint(Sketcher.Constraint("DistanceX", -1, 1, 14, 3, 0.513259))
sketch1.addConstraint(Sketcher.Constraint("DistanceX", -1, 1, 16, 3, 4.075811))
sketch1.addConstraint(Sketcher.Constraint("DistanceY", 18, 3, -1, 1, 14.322658))
sketch1.addConstraint(Sketcher.Constraint("DistanceX", -1, 1, 20, 3, 7.485109))
sketch1.addConstraint(Sketcher.Constraint("DistanceY", 20, 3, -1, 1, 6.625658))
sketch1.addConstraint(Sketcher.Constraint("DistanceX", 21, 3, -1, 1, 0.000331))
sketch1.addConstraint(Sketcher.Constraint("DistanceY", -1, 1, 32, 3, 0.000791))
sketch1.addConstraint(Sketcher.Constraint("DistanceY", -1, 1, 34, 3, 9.217178))
sketch1.addConstraint(Sketcher.Constraint("DistanceY", 35, 3, -1, 1, 0.00011))
sketch1.addConstraint(Sketcher.Constraint("DistanceY", -1, 1, 36, 3, 8.771788))
sketch1.addConstraint(Sketcher.Constraint("DistanceY", -1, 1, 43, 3, 0.000791))
sketch1.addConstraint(Sketcher.Constraint("DistanceY", 50, 3, -1, 1, 0.00011))
sketch1.addConstraint(Sketcher.Constraint("DistanceY", -1, 1, 51, 3, 9.217178))
sketch1.addConstraint(Sketcher.Constraint("DistanceY", -1, 1, 57, 3, 8.771788))
sketch1.addConstraint(Sketcher.Constraint("DistanceY", 1, 1, -1, 1, 8.817309))
sketch1.addConstraint(Sketcher.Constraint("DistanceX", 2, 1, -1, 1, 16.997289))
sketch1.addConstraint(Sketcher.Constraint("DistanceY", 6, 1, -1, 1, 7.53658))
sketch1.addConstraint(Sketcher.Constraint("DistanceX", 7, 2, -1, 1, 9.642441))
sketch1.addConstraint(Sketcher.Constraint("DistanceX", 9, 1, -1, 1, 4.520769))
sketch1.addConstraint(Sketcher.Constraint("DistanceY", 9, 1, -1, 1, 19.810731))
sketch1.addConstraint(Sketcher.Constraint("DistanceX", 10, 1, -1, 1, 5.898131))
sketch1.addConstraint(Sketcher.Constraint("DistanceX", 12, 1, -1, 1, 0.41057))
sketch1.addConstraint(Sketcher.Constraint("DistanceY", 12, 1, -1, 1, 7.98576))
sketch1.addConstraint(Sketcher.Constraint("DistanceX", -1, 1, 13, 2, 0.41057))
sketch1.addConstraint(Sketcher.Constraint("DistanceX", -1, 1, 14, 1, 2.335578))
sketch1.addConstraint(Sketcher.Constraint("DistanceX", -1, 1, 15, 2, 5.898131))
sketch1.addConstraint(Sketcher.Constraint("DistanceX", -1, 1, 16, 1, 4.520769))
sketch1.addConstraint(Sketcher.Constraint("DistanceY", 17, 1, -1, 1, 15.886268))
sketch1.addConstraint(Sketcher.Constraint("DistanceX", -1, 1, 18, 1, 9.642441))
sketch1.addConstraint(Sketcher.Constraint("DistanceY", 19, 2, -1, 1, 7.53658))
sketch1.addConstraint(Sketcher.Constraint("DistanceX", -1, 1, 23, 2, 16.997289))
sketch1.addConstraint(Sketcher.Constraint("DistanceY", 24, 1, -1, 1, 8.817309))
sketch1.addConstraint(Sketcher.Constraint("DistanceX", 28, 1, -1, 1, 7.69418))
sketch1.addConstraint(Sketcher.Constraint("DistanceX", 31, 2, -1, 1, 17.922058))
sketch1.addConstraint(Sketcher.Constraint("DistanceY", -1, 1, 32, 1, 0.000878))
sketch1.addConstraint(Sketcher.Constraint("DistanceX", 34, 1, -1, 1, 3.094981))
sketch1.addConstraint(Sketcher.Constraint("DistanceY", -1, 1, 34, 1, 7.373061))
sketch1.addConstraint(Sketcher.Constraint("DistanceX", 36, 1, -1, 1, 6.078231))
sketch1.addConstraint(Sketcher.Constraint("DistanceX", 39, 1, -1, 1, 4.522481))
sketch1.addConstraint(Sketcher.Constraint("DistanceY", -1, 1, 40, 1, 17.908682))
sketch1.addConstraint(Sketcher.Constraint("DistanceX", -1, 1, 43, 1, 17.922058))
sketch1.addConstraint(Sketcher.Constraint("DistanceX", -1, 1, 46, 2, 7.69418))
sketch1.addConstraint(Sketcher.Constraint("DistanceX", -1, 1, 50, 2, 3.094981))
sketch1.addConstraint(Sketcher.Constraint("DistanceY", -1, 1, 50, 2, 7.373061))
sketch1.addConstraint(Sketcher.Constraint("DistanceY", -1, 1, 52, 2, 17.908682))
sketch1.addConstraint(Sketcher.Constraint("DistanceX", -1, 1, 53, 1, 4.522481))
sketch1.addConstraint(Sketcher.Constraint("DistanceX", -1, 1, 56, 2, 6.078231))
sketch1.addConstraint(Sketcher.Constraint("Distance", 3, 8.645834))
sketch1.addConstraint(Sketcher.Constraint("Distance", 7, 8.645835))
sketch1.addConstraint(Sketcher.Constraint("Distance", 11, 8.645835))
sketch1.addConstraint(Sketcher.Constraint("Distance", 23, 8.645834))
sketch1.addConstraint(Sketcher.Constraint("Distance", 27, 8.645835))
sketch1.addConstraint(Sketcher.Constraint("Distance", 31, 8.645834))
sketch1.addConstraint(Sketcher.Constraint("Distance", 33, 8.645835))
sketch1.addConstraint(Sketcher.Constraint("Distance", 37, 8.645835))
sketch1.addConstraint(Sketcher.Constraint("Distance", 44, 8.645834))
sketch1.addConstraint(Sketcher.Constraint("Distance", 48, 8.645835))
sketch1.addConstraint(Sketcher.Constraint("Distance", 52, 8.645835))
sketch1.addConstraint(Sketcher.Constraint("Distance", 56, 8.645835))
sketch1.addConstraint(Sketcher.Constraint("DistanceX", 2, 3, -1, 1, 16.505406))
sketch1.addConstraint(Sketcher.Constraint("DistanceY", 2, 3, -1, 1, 7.949463))
sketch1.addConstraint(Sketcher.Constraint("DistanceX", 4, 3, -1, 1, 8.125132))
sketch1.addConstraint(Sketcher.Constraint("DistanceX", -1, 1, 22, 3, 8.125132))
sketch1.addConstraint(Sketcher.Constraint("DistanceX", -1, 1, 24, 3, 16.505406))
sketch1.addConstraint(Sketcher.Constraint("DistanceY", 24, 3, -1, 1, 7.949463))
sketch1.addConstraint(Sketcher.Constraint("DistanceX", 26, 3, -1, 1, 16.506093))
sketch1.addConstraint(Sketcher.Constraint("DistanceX", 28, 3, -1, 1, 9.618615))
sketch1.addConstraint(Sketcher.Constraint("DistanceY", -1, 1, 28, 3, 2.721845))
sketch1.addConstraint(Sketcher.Constraint("DistanceX", 29, 3, -1, 1, 0.000467))
sketch1.addConstraint(Sketcher.Constraint("DistanceX", 30, 3, -1, 1, 9.847035))
sketch1.addConstraint(Sketcher.Constraint("DistanceX", 40, 3, -1, 1, 4.077355))
sketch1.addConstraint(Sketcher.Constraint("DistanceX", -1, 1, 45, 3, 9.847035))
sketch1.addConstraint(Sketcher.Constraint("DistanceY", -1, 1, 45, 3, 1.721062))
sketch1.addConstraint(Sketcher.Constraint("DistanceX", -1, 1, 46, 3, 0.000467))
sketch1.addConstraint(Sketcher.Constraint("DistanceX", -1, 1, 47, 3, 9.618615))
sketch1.addConstraint(Sketcher.Constraint("DistanceX", -1, 1, 49, 3, 16.506093))
sketch1.addConstraint(Sketcher.Constraint("DistanceX", -1, 1, 53, 3, 4.077355))
sketch1.addConstraint(Sketcher.Constraint("DistanceX", 4, 1, -1, 1, 6.499505))
sketch1.addConstraint(Sketcher.Constraint("DistanceX", 5, 2, -1, 1, 5.987533))
sketch1.addConstraint(Sketcher.Constraint("DistanceX", -1, 1, 20, 1, 5.987533))
sketch1.addConstraint(Sketcher.Constraint("DistanceX", -1, 1, 21, 2, 6.499505))
sketch1.addConstraint(Sketcher.Constraint("DistanceX", 25, 1, -1, 1, 18.308068))
sketch1.addConstraint(Sketcher.Constraint("DistanceX", 26, 1, -1, 1, 15.297143))
sketch1.addConstraint(Sketcher.Constraint("DistanceX", 35, 2, -1, 1, 3.834802))
sketch1.addConstraint(Sketcher.Constraint("DistanceX", 38, 1, -1, 1, 12.668626))
sketch1.addConstraint(Sketcher.Constraint("DistanceY", -1, 1, 42, 1, 0.000878))
sketch1.addConstraint(Sketcher.Constraint("DistanceX", -1, 1, 47, 1, 8.409663))
sketch1.addConstraint(Sketcher.Constraint("DistanceX", -1, 1, 49, 1, 18.308068))
sketch1.addConstraint(Sketcher.Constraint("DistanceX", -1, 1, 54, 1, 12.668626))
pad1 = body.newObject("PartDesign::Pad", "Pad")
pad1.Profile = sketch1
pad1.Length = 5
pad1.Midplane = True

sketch2 = body.newObject("Sketcher::SketchObject", "Sketch001")
sketch2.AttachmentSupport = (doc.getObject("YZ_Plane"), [""])
sketch2.MapMode = "FlatFace"
add_polygon(sketch2, [(25.4, -1.6), (25.5, 0), (25.4, 1.6), (24, 0)])
sketch2.addConstraint(Sketcher.Constraint("Symmetric", 1, 2, 3, 2, -1))
sketch2.addConstraint(Sketcher.Constraint("PointOnObject", 0, 2, -1))
sketch2.addConstraint(Sketcher.Constraint("PointOnObject", 2, 2, -1))
sketch2.addConstraint(Sketcher.Constraint("DistanceX", 2, 2, 0, 2, 1.5))
sketch2.addConstraint(Sketcher.Constraint("DistanceX", -1, 1, 0, 2, 25.503))
sketch2.addConstraint(Sketcher.Constraint("DistanceX", -1, 1, 1, 2, 25.408719))
sketch2.addConstraint(Sketcher.Constraint("DistanceY", 3, 2, 1, 2, 3.10423))
groove = body.newObject("PartDesign::Groove", "Groove")
groove.Profile = sketch2
groove.ReferenceAxis = (sketch2, ["V_Axis"])
groove.Angle = 360

doc.recompute()
